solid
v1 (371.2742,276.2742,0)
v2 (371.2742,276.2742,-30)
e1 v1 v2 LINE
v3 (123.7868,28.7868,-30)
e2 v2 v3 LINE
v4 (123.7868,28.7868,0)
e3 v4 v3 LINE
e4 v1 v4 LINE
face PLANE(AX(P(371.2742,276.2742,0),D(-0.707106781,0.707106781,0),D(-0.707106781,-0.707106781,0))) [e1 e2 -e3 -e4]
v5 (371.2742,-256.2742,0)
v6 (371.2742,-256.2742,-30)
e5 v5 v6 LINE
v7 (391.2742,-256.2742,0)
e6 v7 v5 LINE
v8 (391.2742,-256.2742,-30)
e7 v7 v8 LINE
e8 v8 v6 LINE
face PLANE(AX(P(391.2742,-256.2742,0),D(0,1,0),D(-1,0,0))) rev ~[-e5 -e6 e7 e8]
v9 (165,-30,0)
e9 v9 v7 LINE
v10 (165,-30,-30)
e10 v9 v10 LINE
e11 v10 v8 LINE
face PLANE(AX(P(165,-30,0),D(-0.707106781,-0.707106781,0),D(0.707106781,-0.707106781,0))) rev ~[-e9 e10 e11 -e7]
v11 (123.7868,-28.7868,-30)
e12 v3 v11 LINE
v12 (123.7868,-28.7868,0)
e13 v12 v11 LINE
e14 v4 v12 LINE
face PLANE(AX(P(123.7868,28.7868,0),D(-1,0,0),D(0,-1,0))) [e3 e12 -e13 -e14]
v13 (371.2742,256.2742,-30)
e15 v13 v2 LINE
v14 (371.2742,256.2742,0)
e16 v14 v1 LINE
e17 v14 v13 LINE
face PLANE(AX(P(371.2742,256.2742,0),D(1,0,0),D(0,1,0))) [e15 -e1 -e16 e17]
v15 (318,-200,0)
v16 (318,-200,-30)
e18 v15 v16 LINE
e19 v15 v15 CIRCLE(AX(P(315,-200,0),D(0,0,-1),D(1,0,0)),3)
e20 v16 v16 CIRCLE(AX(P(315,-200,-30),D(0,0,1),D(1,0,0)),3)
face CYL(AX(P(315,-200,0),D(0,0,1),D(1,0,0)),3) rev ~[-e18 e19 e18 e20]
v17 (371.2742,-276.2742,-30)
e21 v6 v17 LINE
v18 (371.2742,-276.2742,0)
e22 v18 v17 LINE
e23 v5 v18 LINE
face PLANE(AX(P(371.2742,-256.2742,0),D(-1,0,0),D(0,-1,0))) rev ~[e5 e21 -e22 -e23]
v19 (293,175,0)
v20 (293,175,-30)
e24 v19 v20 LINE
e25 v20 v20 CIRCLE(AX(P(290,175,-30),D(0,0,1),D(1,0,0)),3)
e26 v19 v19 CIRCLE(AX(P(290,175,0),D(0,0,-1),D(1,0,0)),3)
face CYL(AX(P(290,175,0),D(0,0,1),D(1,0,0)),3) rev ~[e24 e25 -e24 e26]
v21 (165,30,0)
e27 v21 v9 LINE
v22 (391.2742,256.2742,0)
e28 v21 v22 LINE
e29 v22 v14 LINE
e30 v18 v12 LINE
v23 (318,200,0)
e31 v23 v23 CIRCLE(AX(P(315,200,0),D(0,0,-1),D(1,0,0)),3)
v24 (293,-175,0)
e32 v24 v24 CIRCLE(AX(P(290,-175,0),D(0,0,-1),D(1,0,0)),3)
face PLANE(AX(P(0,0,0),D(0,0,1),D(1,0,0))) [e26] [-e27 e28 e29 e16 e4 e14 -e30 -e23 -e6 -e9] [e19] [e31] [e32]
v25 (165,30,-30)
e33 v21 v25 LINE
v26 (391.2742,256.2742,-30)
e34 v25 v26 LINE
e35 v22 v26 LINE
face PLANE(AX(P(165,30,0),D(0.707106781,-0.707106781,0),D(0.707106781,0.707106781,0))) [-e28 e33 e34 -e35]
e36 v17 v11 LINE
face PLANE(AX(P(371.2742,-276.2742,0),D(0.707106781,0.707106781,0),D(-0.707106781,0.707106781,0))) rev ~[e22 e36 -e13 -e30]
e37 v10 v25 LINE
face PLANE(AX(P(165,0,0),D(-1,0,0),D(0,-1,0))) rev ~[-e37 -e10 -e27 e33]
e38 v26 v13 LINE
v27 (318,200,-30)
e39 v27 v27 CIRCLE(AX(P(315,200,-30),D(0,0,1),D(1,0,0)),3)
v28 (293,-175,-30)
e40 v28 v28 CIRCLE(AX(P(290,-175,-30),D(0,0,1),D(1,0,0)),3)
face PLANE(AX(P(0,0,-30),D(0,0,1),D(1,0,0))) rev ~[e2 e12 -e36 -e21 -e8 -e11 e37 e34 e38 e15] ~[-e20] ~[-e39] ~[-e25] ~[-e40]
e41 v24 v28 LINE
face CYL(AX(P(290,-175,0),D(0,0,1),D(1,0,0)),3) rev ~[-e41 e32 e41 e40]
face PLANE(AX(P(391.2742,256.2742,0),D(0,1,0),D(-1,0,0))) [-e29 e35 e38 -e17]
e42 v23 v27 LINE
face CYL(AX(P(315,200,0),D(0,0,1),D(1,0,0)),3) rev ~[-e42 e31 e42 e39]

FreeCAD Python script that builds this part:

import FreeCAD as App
import Part
import Sketcher

V = App.Vector
Q = App.Units.Quantity

doc = App.newDocument("Part")
params = doc.addObject("Spreadsheet::Sheet", "Params")
for row, (alias, value) in enumerate([
    ("sketch1_width", "20 mm"),
    ("sketch1_length", "320 mm"),
    ("sketch1_length2", "350 mm"),
    ("pad1_length", "30 mm"),
    ("sketch2_diameter", "6 mm"),
], start=1):
    params.set(f"A{row}", alias)
    params.set(f"B{row}", "=" + value)
    params.setAlias(f"B{row}", alias)

body = doc.addObject("PartDesign::Body", "Body")

# Sketch on XY plane
sketch1 = doc.addObject("Sketcher::SketchObject", "Sketch")
body.addObject(sketch1)
sketch1.AttachmentSupport = (doc.XY_Plane, [""])
sketch1.MapMode = "FlatFace"
sketch1.addGeometry([
    Part.LineSegment(V(165, -30, 0), V(165, 30, 0)),  # 0
    Part.LineSegment(V(165, 30, 0), V(391, 256, 0)),  # 1
    Part.LineSegment(V(391, 256, 0), V(371, 256, 0)),  # 2
    Part.LineSegment(V(371, 256, 0), V(371, 276, 0)),  # 3
    Part.LineSegment(V(371, 276, 0), V(124, 29, 0)),  # 4
    Part.LineSegment(V(124, 29, 0), V(124, -29, 0)),  # 5
    Part.LineSegment(V(124, -29, 0), V(371, -276, 0)),  # 6
    Part.LineSegment(V(371, -276, 0), V(371, -256, 0)),  # 7
    Part.LineSegment(V(371, -256, 0), V(391, -256, 0)),  # 8
    Part.LineSegment(V(391, -256, 0), V(165, -30, 0)),  # 9
], False)
sketch1.addConstraint([
    Sketcher.Constraint("Coincident", 0, 2, 1, 1),
    Sketcher.Constraint("Coincident", 1, 2, 2, 1),
    Sketcher.Constraint("Coincident", 2, 2, 3, 1),
    Sketcher.Constraint("Coincident", 3, 2, 4, 1),
    Sketcher.Constraint("Coincident", 4, 2, 5, 1),
    Sketcher.Constraint("Coincident", 5, 2, 6, 1),
    Sketcher.Constraint("Coincident", 6, 2, 7, 1),
    Sketcher.Constraint("Coincident", 7, 2, 8, 1),
    Sketcher.Constraint("Coincident", 8, 2, 9, 1),
    Sketcher.Constraint("Coincident", 9, 2, 0, 1),
    Sketcher.Constraint("Vertical", 0),
    Sketcher.Constraint("Horizontal", 2),
    Sketcher.Constraint("Vertical", 3),
    Sketcher.Constraint("Vertical", 5),
    Sketcher.Constraint("Vertical", 7),
    Sketcher.Constraint("Horizontal", 8),
    Sketcher.Constraint("Symmetric", 3, 2, 6, 2, -1),
    Sketcher.Constraint("Symmetric", 1, 2, 8, 2, -1),
    Sketcher.Constraint("Parallel", 1, 4),
    Sketcher.Constraint("Perpendicular", 4, 6),
    Sketcher.Constraint("Parallel", 6, 9),
    Sketcher.Constraint("Equal", 8, 3),
    Sketcher.Constraint("Equal", 4, 6),
    Sketcher.Constraint("DistanceX", 2, 2, 2, 1, Q("20 mm")),
    Sketcher.Constraint("Distance", 1, Q("320 mm")),
    Sketcher.Constraint("Distance", 4, Q("350 mm")),
    Sketcher.Constraint("DistanceY", -1, 1, 0, 2, Q("30 mm")),
    Sketcher.Constraint("DistanceX", -1, 1, 0, 2, Q("165 mm")),
])
sketch1.setExpression("Constraints[23]", "Params.sketch1_width")
sketch1.setExpression("Constraints[24]", "Params.sketch1_length")
sketch1.setExpression("Constraints[25]", "Params.sketch1_length2")
pad1 = doc.addObject("PartDesign::Pad", "Pad")
body.addObject(pad1)
pad1.Profile = sketch1
pad1.setExpression("Length", "Params.pad1_length")
pad1.Reversed = True

# Sketch on XY plane
sketch2 = doc.addObject("Sketcher::SketchObject", "Sketch001")
body.addObject(sketch2)
sketch2.AttachmentSupport = (doc.XY_Plane, [""])
sketch2.MapMode = "FlatFace"
sketch2.addGeometry([
    Part.Circle(V(315, -200, 0), V(0, 0, 1), 3),
    Part.Circle(V(290, -175, 0), V(0, 0, 1), 3),
    Part.Circle(V(315, 200, 0), V(0, 0, 1), 3),
    Part.Circle(V(290, 175, 0), V(0, 0, 1), 3),
], False)
sketch2.addConstraint([
    Sketcher.Constraint("Equal", 0, 1),
    Sketcher.Constraint("Equal", 1, 2),
    Sketcher.Constraint("Equal", 2, 3),
    Sketcher.Constraint("Symmetric", 0, 3, 2, 3, -1),
    Sketcher.Constraint("Symmetric", 1, 3, 3, 3, -1),
    Sketcher.Constraint("Diameter", 0, Q("6 mm")),
    Sketcher.Constraint("DistanceY", 0, 3, 2, 3, Q("400 mm")),
    Sketcher.Constraint("DistanceY", 1, 3, 3, 3, Q("350 mm")),
    Sketcher.Constraint("DistanceX", -1, 1, 0, 3, Q("315 mm")),
    Sketcher.Constraint("DistanceX", -1, 1, 1, 3, Q("290 mm")),
])
sketch2.setExpression("Constraints[5]", "Params.sketch2_diameter")
pocket1 = doc.addObject("PartDesign::Pocket", "Pocket")
body.addObject(pocket1)
pocket1.Profile = sketch2
pocket1.Type = "ThroughAll"
pocket1.Midplane = True

doc.recompute()
